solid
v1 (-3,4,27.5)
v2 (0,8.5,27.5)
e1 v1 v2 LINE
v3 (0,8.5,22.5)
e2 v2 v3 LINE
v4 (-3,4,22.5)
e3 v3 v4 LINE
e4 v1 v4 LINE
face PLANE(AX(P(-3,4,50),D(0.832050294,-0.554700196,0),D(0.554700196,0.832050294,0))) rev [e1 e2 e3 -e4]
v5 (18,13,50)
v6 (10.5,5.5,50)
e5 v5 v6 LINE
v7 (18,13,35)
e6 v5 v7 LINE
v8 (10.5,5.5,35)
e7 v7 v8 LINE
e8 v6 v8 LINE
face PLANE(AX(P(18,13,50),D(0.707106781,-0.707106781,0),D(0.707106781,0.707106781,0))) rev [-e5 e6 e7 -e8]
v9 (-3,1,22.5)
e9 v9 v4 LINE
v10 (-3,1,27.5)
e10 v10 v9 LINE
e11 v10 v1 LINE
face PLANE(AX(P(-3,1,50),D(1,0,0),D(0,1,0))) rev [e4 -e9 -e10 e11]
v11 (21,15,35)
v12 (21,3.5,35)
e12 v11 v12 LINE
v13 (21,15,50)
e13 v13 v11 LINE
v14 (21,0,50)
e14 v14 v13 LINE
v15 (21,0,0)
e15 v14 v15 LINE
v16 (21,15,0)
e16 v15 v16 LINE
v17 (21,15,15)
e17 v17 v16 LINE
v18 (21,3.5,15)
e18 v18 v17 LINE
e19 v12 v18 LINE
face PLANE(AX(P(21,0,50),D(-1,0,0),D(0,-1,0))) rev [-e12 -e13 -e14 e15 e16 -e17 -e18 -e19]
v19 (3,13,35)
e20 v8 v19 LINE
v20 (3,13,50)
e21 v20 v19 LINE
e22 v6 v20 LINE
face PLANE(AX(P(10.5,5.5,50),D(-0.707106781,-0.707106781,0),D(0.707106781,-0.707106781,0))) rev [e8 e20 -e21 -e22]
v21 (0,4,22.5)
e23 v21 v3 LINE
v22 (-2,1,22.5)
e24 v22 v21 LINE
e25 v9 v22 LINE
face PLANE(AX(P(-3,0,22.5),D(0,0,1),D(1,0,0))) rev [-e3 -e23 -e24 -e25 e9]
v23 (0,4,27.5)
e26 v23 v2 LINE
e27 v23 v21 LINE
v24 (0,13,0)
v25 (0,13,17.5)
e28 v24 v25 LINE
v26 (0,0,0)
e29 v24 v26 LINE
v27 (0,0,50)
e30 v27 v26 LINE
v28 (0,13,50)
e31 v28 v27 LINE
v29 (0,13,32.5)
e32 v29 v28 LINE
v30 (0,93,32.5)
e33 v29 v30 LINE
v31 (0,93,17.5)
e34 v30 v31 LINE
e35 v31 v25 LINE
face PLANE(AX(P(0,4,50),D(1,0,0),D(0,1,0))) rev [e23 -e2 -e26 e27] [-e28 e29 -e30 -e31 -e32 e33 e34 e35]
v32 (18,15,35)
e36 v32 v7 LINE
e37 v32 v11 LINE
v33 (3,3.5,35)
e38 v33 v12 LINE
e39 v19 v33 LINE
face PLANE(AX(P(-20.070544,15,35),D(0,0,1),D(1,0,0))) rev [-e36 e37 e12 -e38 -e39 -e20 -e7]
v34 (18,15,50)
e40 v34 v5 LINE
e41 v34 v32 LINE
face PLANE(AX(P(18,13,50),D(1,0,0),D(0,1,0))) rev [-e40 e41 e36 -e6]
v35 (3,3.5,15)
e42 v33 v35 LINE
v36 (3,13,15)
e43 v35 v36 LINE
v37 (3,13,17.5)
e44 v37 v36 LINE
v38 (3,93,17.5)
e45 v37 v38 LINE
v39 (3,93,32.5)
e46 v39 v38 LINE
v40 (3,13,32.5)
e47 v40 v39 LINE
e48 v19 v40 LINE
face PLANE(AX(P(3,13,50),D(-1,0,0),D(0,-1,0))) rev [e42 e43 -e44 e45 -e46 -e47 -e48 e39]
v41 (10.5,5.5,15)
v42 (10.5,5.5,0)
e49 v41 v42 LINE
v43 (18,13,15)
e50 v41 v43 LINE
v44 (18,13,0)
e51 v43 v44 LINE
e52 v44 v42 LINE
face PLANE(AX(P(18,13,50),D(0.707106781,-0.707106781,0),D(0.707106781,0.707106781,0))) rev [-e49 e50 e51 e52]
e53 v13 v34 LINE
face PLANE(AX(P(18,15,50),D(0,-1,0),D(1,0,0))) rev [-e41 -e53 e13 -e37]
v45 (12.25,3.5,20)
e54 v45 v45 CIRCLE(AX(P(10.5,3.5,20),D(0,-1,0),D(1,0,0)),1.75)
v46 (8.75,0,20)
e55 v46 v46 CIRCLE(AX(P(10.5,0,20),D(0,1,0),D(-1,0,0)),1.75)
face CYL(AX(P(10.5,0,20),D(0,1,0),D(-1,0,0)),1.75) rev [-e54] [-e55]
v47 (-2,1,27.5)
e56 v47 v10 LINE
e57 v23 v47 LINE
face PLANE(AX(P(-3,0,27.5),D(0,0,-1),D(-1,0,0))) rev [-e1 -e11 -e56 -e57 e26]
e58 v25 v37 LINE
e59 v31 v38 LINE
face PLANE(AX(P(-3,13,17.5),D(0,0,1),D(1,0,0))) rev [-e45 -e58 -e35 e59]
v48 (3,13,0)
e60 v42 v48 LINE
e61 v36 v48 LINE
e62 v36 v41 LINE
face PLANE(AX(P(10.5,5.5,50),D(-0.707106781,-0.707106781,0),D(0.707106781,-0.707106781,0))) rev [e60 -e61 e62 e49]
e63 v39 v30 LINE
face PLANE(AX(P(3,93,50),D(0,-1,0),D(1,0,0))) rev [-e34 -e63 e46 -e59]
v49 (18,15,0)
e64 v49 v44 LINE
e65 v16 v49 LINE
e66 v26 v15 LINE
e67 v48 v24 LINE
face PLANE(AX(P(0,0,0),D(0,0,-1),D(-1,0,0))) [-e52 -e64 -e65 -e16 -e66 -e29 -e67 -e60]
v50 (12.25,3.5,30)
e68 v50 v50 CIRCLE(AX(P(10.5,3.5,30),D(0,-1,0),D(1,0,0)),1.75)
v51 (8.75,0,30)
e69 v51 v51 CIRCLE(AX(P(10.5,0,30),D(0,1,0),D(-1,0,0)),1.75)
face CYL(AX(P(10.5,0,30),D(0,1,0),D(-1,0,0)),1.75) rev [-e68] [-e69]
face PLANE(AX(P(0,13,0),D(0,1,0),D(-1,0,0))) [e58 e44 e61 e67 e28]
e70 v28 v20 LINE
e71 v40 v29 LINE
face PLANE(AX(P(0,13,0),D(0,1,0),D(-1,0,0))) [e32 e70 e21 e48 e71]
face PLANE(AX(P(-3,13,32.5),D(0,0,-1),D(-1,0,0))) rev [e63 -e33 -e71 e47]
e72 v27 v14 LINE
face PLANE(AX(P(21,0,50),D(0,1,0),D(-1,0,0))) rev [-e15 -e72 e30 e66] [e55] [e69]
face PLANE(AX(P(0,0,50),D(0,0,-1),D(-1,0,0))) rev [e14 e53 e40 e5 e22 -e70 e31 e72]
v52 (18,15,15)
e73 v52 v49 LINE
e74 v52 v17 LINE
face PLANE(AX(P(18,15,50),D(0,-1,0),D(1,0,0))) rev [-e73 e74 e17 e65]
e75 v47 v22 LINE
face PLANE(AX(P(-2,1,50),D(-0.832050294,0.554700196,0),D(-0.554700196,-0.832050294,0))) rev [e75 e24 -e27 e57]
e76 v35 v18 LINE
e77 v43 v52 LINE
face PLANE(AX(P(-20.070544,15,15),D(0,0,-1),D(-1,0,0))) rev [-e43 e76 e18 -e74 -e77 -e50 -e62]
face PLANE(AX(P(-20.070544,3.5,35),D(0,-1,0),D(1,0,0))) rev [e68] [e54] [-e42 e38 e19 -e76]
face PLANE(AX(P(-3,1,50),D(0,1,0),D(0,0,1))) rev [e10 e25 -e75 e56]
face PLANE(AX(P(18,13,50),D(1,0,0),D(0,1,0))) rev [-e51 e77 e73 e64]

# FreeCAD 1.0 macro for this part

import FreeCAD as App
import Part
import Sketcher
from FreeCAD import Vector
Q = App.Units.Quantity

doc = App.newDocument("Part")
body = doc.addObject("PartDesign::Body", "Body")

sketch1 = doc.addObject("Sketcher::SketchObject", "Sketch")
body.addObject(sketch1)
sketch1.AttachmentSupport = (doc.XY_Plane, [""])
sketch1.MapMode = "FlatFace"
sketch1.addGeometry(Part.LineSegment(Vector(0, 0, 0), Vector(21, 0, 0)), False)
sketch1.addGeometry(Part.LineSegment(Vector(21, 0, 0), Vector(21, 15, 0)), False)
sketch1.addGeometry(Part.LineSegment(Vector(21, 15, 0), Vector(18, 15, 0)), False)
sketch1.addGeometry(Part.LineSegment(Vector(18, 15, 0), Vector(18, 13, 0)), False)
sketch1.addGeometry(Part.LineSegment(Vector(18, 13, 0), Vector(10.5, 5.5, 0)), False)
sketch1.addGeometry(Part.LineSegment(Vector(10.5, 5.5, 0), Vector(3, 13, 0)), False)
sketch1.addGeometry(Part.LineSegment(Vector(3, 13, 0), Vector(3, 93, 0)), False)
sketch1.addGeometry(Part.LineSegment(Vector(3, 93, 0), Vector(0, 93, 0)), False)
sketch1.addGeometry(Part.LineSegment(Vector(0, 93, 0), Vector(0, 8.5, 0)), False)
sketch1.addGeometry(Part.LineSegment(Vector(0, 8.5, 0), Vector(-3, 4, 0)), False)
sketch1.addGeometry(Part.LineSegment(Vector(-3, 4, 0), Vector(-3, 1, 0)), False)
sketch1.addGeometry(Part.LineSegment(Vector(-3, 1, 0), Vector(-2, 1, 0)), False)
sketch1.addGeometry(Part.LineSegment(Vector(-2, 1, 0), Vector(0, 4, 0)), False)
sketch1.addGeometry(Part.LineSegment(Vector(0, 4, 0), Vector(0, 0, 0)), False)
sketch1.addConstraint(Sketcher.Constraint("Coincident", 0, 2, 1, 1))
sketch1.addConstraint(Sketcher.Constraint("Coincident", 1, 2, 2, 1))
sketch1.addConstraint(Sketcher.Constraint("Coincident", 2, 2, 3, 1))
sketch1.addConstraint(Sketcher.Constraint("Coincident", 3, 2, 4, 1))
sketch1.addConstraint(Sketcher.Constraint("Coincident", 4, 2, 5, 1))
sketch1.addConstraint(Sketcher.Constraint("Coincident", 5, 2, 6, 1))
sketch1.addConstraint(Sketcher.Constraint("Coincident", 6, 2, 7, 1))
sketch1.addConstraint(Sketcher.Constraint("Coincident", 7, 2, 8, 1))
sketch1.addConstraint(Sketcher.Constraint("Coincident", 8, 2, 9, 1))
sketch1.addConstraint(Sketcher.Constraint("Coincident", 9, 2, 10, 1))
sketch1.addConstraint(Sketcher.Constraint("Coincident", 10, 2, 11, 1))
sketch1.addConstraint(Sketcher.Constraint("Coincident", 11, 2, 12, 1))
sketch1.addConstraint(Sketcher.Constraint("Coincident", 12, 2, 13, 1))
sketch1.addConstraint(Sketcher.Constraint("Coincident", 13, 2, 0, 1))
sketch1.addConstraint(Sketcher.Constraint("Horizontal", 0))
sketch1.addConstraint(Sketcher.Constraint("Vertical", 1))
sketch1.addConstraint(Sketcher.Constraint("Horizontal", 2))
sketch1.addConstraint(Sketcher.Constraint("Vertical", 3))
sketch1.addConstraint(Sketcher.Constraint("Vertical", 6))
sketch1.addConstraint(Sketcher.Constraint("Horizontal", 7))
sketch1.addConstraint(Sketcher.Constraint("Vertical", 8))
sketch1.addConstraint(Sketcher.Constraint("Vertical", 10))
sketch1.addConstraint(Sketcher.Constraint("Horizontal", 11))
sketch1.addConstraint(Sketcher.Constraint("Vertical", 13))
sketch1.addConstraint(Sketcher.Constraint("Coincident", 13, 2, -1, 1))
sketch1.addConstraint(Sketcher.Constraint("PointOnObject", 7, 2, -2))
sketch1.addConstraint(Sketcher.Constraint("Perpendicular", 4, 5))
sketch1.addConstraint(Sketcher.Constraint("Parallel", 9, 12))
sketch1.addConstraint(Sketcher.Constraint("Horizontal", 3, 2, 5, 2))
sketch1.addConstraint(Sketcher.Constraint("Horizontal", 9, 2, 12, 2))
sketch1.addConstraint(Sketcher.Constraint("Equal", 2, 7))
sketch1.addConstraint(Sketcher.Constraint("Equal", 7, 10))
sketch1.addConstraint(Sketcher.Constraint("Equal", 4, 5))
sketch1.addConstraint(Sketcher.Constraint("DistanceX", 0, 1, 0, 2, Q("21 mm")))
sketch1.addConstraint(Sketcher.Constraint("DistanceX", 2, 2, 2, 1, Q("3 mm")))
sketch1.addConstraint(Sketcher.Constraint("DistanceX", 11, 1, 11, 2, Q("1 mm")))
sketch1.addConstraint(Sketcher.Constraint("DistanceY", 1, 1, 1, 2, Q("15 mm")))
sketch1.addConstraint(Sketcher.Constraint("DistanceY", 3, 2, 3, 1, Q("2 mm")))
sketch1.addConstraint(Sketcher.Constraint("DistanceY", 6, 1, 6, 2, Q("80 mm")))
sketch1.addConstraint(Sketcher.Constraint("DistanceY", 13, 2, 13, 1, Q("4 mm")))
sketch1.addConstraint(Sketcher.Constraint("DistanceY", 8, 2, 8, 1, Q("84.5 mm")))
pad1 = doc.addObject("PartDesign::Pad", "Pad")
body.addObject(pad1)
pad1.Profile = sketch1
pad1.Length = 50

sketch2 = doc.addObject("Sketcher::SketchObject", "Sketch001")
body.addObject(sketch2)
sketch2.AttachmentSupport = (doc.XZ_Plane, [""])
sketch2.MapMode = "FlatFace"
sketch2.AttachmentOffset = App.Placement(Vector(0, 0, -93), App.Rotation())
sketch2.addGeometry(Part.LineSegment(Vector(-3, 0, 0), Vector(-3, 17.5, 0)), False)
sketch2.addGeometry(Part.LineSegment(Vector(-3, 17.5, 0), Vector(3, 17.5, 0)), False)
sketch2.addGeometry(Part.LineSegment(Vector(3, 17.5, 0), Vector(3, 0, 0)), False)
sketch2.addGeometry(Part.LineSegment(Vector(3, 0, 0), Vector(-3, 0, 0)), False)
sketch2.addGeometry(Part.LineSegment(Vector(-3, 32.5, 0), Vector(-3, 50, 0)), False)
sketch2.addGeometry(Part.LineSegment(Vector(-3, 50, 0), Vector(3, 50, 0)), False)
sketch2.addGeometry(Part.LineSegment(Vector(3, 50, 0), Vector(3, 32.5, 0)), False)
sketch2.addGeometry(Part.LineSegment(Vector(3, 32.5, 0), Vector(-3, 32.5, 0)), False)
sketch2.addConstraint(Sketcher.Constraint("Coincident", 0, 2, 1, 1))
sketch2.addConstraint(Sketcher.Constraint("Coincident", 1, 2, 2, 1))
sketch2.addConstraint(Sketcher.Constraint("Coincident", 2, 2, 3, 1))
sketch2.addConstraint(Sketcher.Constraint("Coincident", 3, 2, 0, 1))
sketch2.addConstraint(Sketcher.Constraint("Coincident", 4, 2, 5, 1))
sketch2.addConstraint(Sketcher.Constraint("Coincident", 5, 2, 6, 1))
sketch2.addConstraint(Sketcher.Constraint("Coincident", 6, 2, 7, 1))
sketch2.addConstraint(Sketcher.Constraint("Coincident", 7, 2, 4, 1))
sketch2.addConstraint(Sketcher.Constraint("Vertical", 0))
sketch2.addConstraint(Sketcher.Constraint("Horizontal", 1))
sketch2.addConstraint(Sketcher.Constraint("Vertical", 2))
sketch2.addConstraint(Sketcher.Constraint("Horizontal", 3))
sketch2.addConstraint(Sketcher.Constraint("Vertical", 4))
sketch2.addConstraint(Sketcher.Constraint("Horizontal", 5))
sketch2.addConstraint(Sketcher.Constraint("Vertical", 6))
sketch2.addConstraint(Sketcher.Constraint("Horizontal", 7))
sketch2.addConstraint(Sketcher.Constraint("Symmetric", 2, 2, 3, 2, -1, 1))
sketch2.addConstraint(Sketcher.Constraint("Vertical", 3, 2, 4, 2))
sketch2.addConstraint(Sketcher.Constraint("Vertical", 2, 2, 5, 2))
sketch2.addConstraint(Sketcher.Constraint("Equal", 2, 4))
sketch2.addConstraint(Sketcher.Constraint("DistanceX", 1, 1, 1, 2, Q("6 mm")))
sketch2.addConstraint(Sketcher.Constraint("DistanceY", 0, 1, 0, 2, Q("17.5 mm")))
sketch2.addConstraint(Sketcher.Constraint("DistanceY", -1, 1, 4, 2, Q("50 mm")))
pocket1 = doc.addObject("PartDesign::Pocket", "Pocket")
body.addObject(pocket1)
pocket1.Profile = sketch2
pocket1.Length = 80
pocket1.Reversed = True

sketch3 = doc.addObject("Sketcher::SketchObject", "Sketch002")
body.addObject(sketch3)
sketch3.AttachmentSupport = (doc.YZ_Plane, [""])
sketch3.MapMode = "FlatFace"
sketch3.AttachmentOffset = App.Placement(Vector(0, 0, 21), App.Rotation())
sketch3.addGeometry(Part.LineSegment(Vector(15, 35, 0), Vector(3.5, 35, 0)), False)
sketch3.addGeometry(Part.LineSegment(Vector(3.5, 35, 0), Vector(3.5, 15, 0)), False)
sketch3.addGeometry(Part.LineSegment(Vector(3.5, 15, 0), Vector(15, 15, 0)), False)
sketch3.addGeometry(Part.LineSegment(Vector(15, 15, 0), Vector(15, 35, 0)), False)
sketch3.addConstraint(Sketcher.Constraint("Coincident", 0, 2, 1, 1))
sketch3.addConstraint(Sketcher.Constraint("Coincident", 1, 2, 2, 1))
sketch3.addConstraint(Sketcher.Constraint("Coincident", 2, 2, 3, 1))
sketch3.addConstraint(Sketcher.Constraint("Coincident", 3, 2, 0, 1))
sketch3.addConstraint(Sketcher.Constraint("Horizontal", 0))
sketch3.addConstraint(Sketcher.Constraint("Vertical", 1))
sketch3.addConstraint(Sketcher.Constraint("Horizontal", 2))
sketch3.addConstraint(Sketcher.Constraint("Vertical", 3))
sketch3.addConstraint(Sketcher.Constraint("DistanceY", 1, 2, 1, 1, Q("20 mm")))
sketch3.addConstraint(Sketcher.Constraint("DistanceX", 0, 2, 0, 1, Q("11.5 mm")))
sketch3.addConstraint(Sketcher.Constraint("DistanceY", -1, 1, 0, 2, Q("35 mm")))
sketch3.addConstraint(Sketcher.Constraint("DistanceX", -1, 1, 2, 2, Q("15 mm")))
pocket2 = doc.addObject("PartDesign::Pocket", "Pocket001")
body.addObject(pocket2)
pocket2.Profile = sketch3
pocket2.Length = 18

sketch4 = doc.addObject("Sketcher::SketchObject", "Sketch003")
body.addObject(sketch4)
sketch4.AttachmentSupport = (doc.XZ_Plane, [""])
sketch4.MapMode = "FlatFace"
sketch4.AttachmentOffset = App.Placement(Vector(0, 0, -3.5), App.Rotation())
sketch4.addGeometry(Part.Circle(Vector(10.5, 20, 0), Vector(0, 0, 1), 1.75), False)
sketch4.addGeometry(Part.Circle(Vector(10.5, 30, 0), Vector(0, 0, 1), 1.75), False)
sketch4.addGeometry(Part.LineSegment(Vector(-3, 0, 0), Vector(-3, 22.5, 0)), False)
sketch4.addGeometry(Part.LineSegment(Vector(-3, 22.5, 0), Vector(0, 22.5, 0)), False)
sketch4.addGeometry(Part.LineSegment(Vector(0, 22.5, 0), Vector(0, 0, 0)), False)
sketch4.addGeometry(Part.LineSegment(Vector(0, 0, 0), Vector(-3, 0, 0)), False)
sketch4.addGeometry(Part.LineSegment(Vector(-3, 27.5, 0), Vector(-3, 50, 0)), False)
sketch4.addGeometry(Part.LineSegment(Vector(-3, 50, 0), Vector(0, 50, 0)), False)
sketch4.addGeometry(Part.LineSegment(Vector(0, 50, 0), Vector(0, 27.5, 0)), False)
sketch4.addGeometry(Part.LineSegment(Vector(0, 27.5, 0), Vector(-3, 27.5, 0)), False)
sketch4.addConstraint(Sketcher.Constraint("Coincident", 2, 2, 3, 1))
sketch4.addConstraint(Sketcher.Constraint("Coincident", 3, 2, 4, 1))
sketch4.addConstraint(Sketcher.Constraint("Coincident", 4, 2, 5, 1))
sketch4.addConstraint(Sketcher.Constraint("Coincident", 5, 2, 2, 1))
sketch4.addConstraint(Sketcher.Constraint("Coincident", 6, 2, 7, 1))
sketch4.addConstraint(Sketcher.Constraint("Coincident", 7, 2, 8, 1))
sketch4.addConstraint(Sketcher.Constraint("Coincident", 8, 2, 9, 1))
sketch4.addConstraint(Sketcher.Constraint("Coincident", 9, 2, 6, 1))
sketch4.addConstraint(Sketcher.Constraint("Vertical", 2))
sketch4.addConstraint(Sketcher.Constraint("Horizontal", 3))
sketch4.addConstraint(Sketcher.Constraint("Vertical", 4))
sketch4.addConstraint(Sketcher.Constraint("Horizontal", 5))
sketch4.addConstraint(Sketcher.Constraint("Vertical", 6))
sketch4.addConstraint(Sketcher.Constraint("Horizontal", 7))
sketch4.addConstraint(Sketcher.Constraint("Vertical", 8))
sketch4.addConstraint(Sketcher.Constraint("Horizontal", 9))
sketch4.addConstraint(Sketcher.Constraint("Coincident", 4, 2, -1, 1))
sketch4.addConstraint(Sketcher.Constraint("Equal", 0, 1))
sketch4.addConstraint(Sketcher.Constraint("PointOnObject", 7, 2, -2))
sketch4.addConstraint(Sketcher.Constraint("Vertical", 0, 3, 1, 3))
sketch4.addConstraint(Sketcher.Constraint("Vertical", 5, 2, 6, 2))
sketch4.addConstraint(Sketcher.Constraint("Equal", 4, 6))
sketch4.addConstraint(Sketcher.Constraint("Diameter", 0, Q("3.5 mm")))
sketch4.addConstraint(Sketcher.Constraint("DistanceX", 3, 1, 3, 2, Q("3 mm")))
sketch4.addConstraint(Sketcher.Constraint("DistanceY", 2, 1, 2, 2, Q("22.5 mm")))
sketch4.addConstraint(Sketcher.Constraint("DistanceY", -1, 1, 0, 3, Q("20 mm")))
sketch4.addConstraint(Sketcher.Constraint("DistanceY", -1, 1, 1, 3, Q("30 mm")))
sketch4.addConstraint(Sketcher.Constraint("DistanceY", -1, 1, 6, 2, Q("50 mm")))
sketch4.addConstraint(Sketcher.Constraint("DistanceX", -1, 1, 0, 3, Q("10.5 mm")))
pocket3 = doc.addObject("PartDesign::Pocket", "Pocket002")
body.addObject(pocket3)
pocket3.Profile = sketch4
pocket3.Type = "ThroughAll"
pocket3.Midplane = True

doc.recompute()
